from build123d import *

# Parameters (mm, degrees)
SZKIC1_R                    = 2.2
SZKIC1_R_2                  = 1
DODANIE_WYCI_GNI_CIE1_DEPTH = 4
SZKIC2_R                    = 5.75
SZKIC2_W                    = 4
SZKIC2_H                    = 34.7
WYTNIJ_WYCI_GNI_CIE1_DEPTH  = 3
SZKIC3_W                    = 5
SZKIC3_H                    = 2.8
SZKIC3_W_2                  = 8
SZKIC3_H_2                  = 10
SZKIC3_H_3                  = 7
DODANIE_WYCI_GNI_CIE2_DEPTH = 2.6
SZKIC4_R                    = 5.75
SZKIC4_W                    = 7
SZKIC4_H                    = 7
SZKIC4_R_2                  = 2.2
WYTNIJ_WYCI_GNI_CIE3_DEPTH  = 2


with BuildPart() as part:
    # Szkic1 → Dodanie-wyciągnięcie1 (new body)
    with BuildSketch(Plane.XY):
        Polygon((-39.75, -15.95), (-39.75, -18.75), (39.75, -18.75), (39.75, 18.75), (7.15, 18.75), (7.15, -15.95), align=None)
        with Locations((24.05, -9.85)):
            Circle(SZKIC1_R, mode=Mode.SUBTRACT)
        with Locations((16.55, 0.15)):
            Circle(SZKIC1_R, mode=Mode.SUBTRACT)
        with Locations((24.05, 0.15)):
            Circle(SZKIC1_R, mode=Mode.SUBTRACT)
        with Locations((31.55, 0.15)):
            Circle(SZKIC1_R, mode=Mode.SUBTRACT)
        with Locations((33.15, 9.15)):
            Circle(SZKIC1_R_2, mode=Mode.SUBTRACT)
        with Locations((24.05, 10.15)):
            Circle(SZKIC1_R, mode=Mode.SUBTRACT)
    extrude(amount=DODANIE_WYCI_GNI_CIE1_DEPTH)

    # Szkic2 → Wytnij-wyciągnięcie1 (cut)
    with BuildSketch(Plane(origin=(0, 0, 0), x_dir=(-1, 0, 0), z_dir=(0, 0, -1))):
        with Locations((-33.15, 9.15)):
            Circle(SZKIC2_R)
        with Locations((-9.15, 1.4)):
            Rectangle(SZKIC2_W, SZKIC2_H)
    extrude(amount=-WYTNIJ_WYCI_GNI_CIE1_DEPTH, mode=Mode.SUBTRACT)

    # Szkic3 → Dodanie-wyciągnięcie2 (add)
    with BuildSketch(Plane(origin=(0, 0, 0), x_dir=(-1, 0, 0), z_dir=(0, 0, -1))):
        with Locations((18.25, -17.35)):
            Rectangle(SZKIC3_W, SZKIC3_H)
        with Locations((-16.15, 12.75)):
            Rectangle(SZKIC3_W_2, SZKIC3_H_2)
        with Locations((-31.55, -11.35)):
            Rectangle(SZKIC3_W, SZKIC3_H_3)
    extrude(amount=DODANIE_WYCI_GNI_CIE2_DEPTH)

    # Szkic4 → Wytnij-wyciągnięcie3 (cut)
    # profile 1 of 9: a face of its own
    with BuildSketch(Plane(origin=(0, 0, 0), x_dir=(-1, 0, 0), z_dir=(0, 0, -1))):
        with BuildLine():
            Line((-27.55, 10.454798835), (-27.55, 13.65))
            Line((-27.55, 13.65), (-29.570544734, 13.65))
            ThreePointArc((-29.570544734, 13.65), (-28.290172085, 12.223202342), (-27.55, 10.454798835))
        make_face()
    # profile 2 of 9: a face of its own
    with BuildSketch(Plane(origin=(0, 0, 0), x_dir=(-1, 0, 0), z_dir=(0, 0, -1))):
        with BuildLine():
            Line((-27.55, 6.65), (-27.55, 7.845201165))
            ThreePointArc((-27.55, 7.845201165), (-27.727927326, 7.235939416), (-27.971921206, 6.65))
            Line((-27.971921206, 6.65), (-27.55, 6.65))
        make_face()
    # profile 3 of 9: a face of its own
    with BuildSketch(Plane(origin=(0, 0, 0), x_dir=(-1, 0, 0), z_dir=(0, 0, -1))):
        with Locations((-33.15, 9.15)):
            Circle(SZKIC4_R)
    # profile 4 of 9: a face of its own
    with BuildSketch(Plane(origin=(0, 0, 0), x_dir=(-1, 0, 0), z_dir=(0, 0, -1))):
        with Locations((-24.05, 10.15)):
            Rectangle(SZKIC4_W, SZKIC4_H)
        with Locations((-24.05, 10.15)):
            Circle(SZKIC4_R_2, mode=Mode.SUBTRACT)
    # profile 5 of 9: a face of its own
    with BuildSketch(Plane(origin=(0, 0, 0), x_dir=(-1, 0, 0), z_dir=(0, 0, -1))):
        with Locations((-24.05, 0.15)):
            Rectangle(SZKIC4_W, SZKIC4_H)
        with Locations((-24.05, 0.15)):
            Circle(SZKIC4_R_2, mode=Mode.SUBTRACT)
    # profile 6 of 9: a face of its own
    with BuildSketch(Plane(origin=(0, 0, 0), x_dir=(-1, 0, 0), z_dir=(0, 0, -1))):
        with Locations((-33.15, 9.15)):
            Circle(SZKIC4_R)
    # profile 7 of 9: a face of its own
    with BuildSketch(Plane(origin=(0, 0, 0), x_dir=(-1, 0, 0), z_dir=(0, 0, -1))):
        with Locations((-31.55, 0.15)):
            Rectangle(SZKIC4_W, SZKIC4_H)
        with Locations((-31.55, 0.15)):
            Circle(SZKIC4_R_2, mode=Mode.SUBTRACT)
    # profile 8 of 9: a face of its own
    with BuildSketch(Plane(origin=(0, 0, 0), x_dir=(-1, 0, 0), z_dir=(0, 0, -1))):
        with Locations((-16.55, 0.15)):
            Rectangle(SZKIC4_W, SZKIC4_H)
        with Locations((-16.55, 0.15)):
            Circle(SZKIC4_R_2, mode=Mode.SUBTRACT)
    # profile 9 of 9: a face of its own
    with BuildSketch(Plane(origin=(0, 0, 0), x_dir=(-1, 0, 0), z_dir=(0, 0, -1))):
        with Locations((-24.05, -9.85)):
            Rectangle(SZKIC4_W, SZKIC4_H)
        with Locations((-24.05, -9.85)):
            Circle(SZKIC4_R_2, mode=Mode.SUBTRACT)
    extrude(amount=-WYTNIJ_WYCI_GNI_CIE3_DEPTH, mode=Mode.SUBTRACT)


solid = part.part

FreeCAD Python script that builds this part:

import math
import FreeCAD as App
import Part
import Sketcher
from FreeCAD import Vector
Q = App.Units.Quantity

doc = App.newDocument("Part")
body = doc.addObject("PartDesign::Body", "Body")

sketch1 = body.newObject("Sketcher::SketchObject", "Sketch")
sketch1.AttachmentSupport = (doc.getObject("XY_Plane"), [""])
sketch1.MapMode = "FlatFace"
sketch1.addGeometry([
    Part.LineSegment(Vector(-39.8, -15.9, 0), Vector(-39.8, -18.8, 0)),
    Part.LineSegment(Vector(-39.8, -18.8, 0), Vector(39.8, -18.8, 0)),
    Part.LineSegment(Vector(39.8, -18.8, 0), Vector(39.8, 18.8, 0)),
    Part.LineSegment(Vector(39.8, 18.8, 0), Vector(7.2, 18.8, 0)),
    Part.LineSegment(Vector(7.2, 18.8, 0), Vector(7.2, -15.9, 0)),
    Part.LineSegment(Vector(7.2, -15.9, 0), Vector(-39.8, -15.9, 0)),
    Part.Circle(Vector(24.1, -9.8, 0), Vector(0, 0, 1), 2.2),
    Part.Circle(Vector(16.6, 0.1, 0), Vector(0, 0, 1), 2.2),
    Part.Circle(Vector(24.1, 0.1, 0), Vector(0, 0, 1), 2.2),
    Part.Circle(Vector(24.1, 10.2, 0), Vector(0, 0, 1), 2.2),
    Part.Circle(Vector(31.6, 0.1, 0), Vector(0, 0, 1), 2.2),
    Part.Circle(Vector(33.1, 9.2, 0), Vector(0, 0, 1), 1),
], False)
sketch1.addConstraint([
    Sketcher.Constraint("Coincident", 0, 2, 1, 1),
    Sketcher.Constraint("Coincident", 1, 2, 2, 1),
    Sketcher.Constraint("Coincident", 2, 2, 3, 1),
    Sketcher.Constraint("Coincident", 3, 2, 4, 1),
    Sketcher.Constraint("Coincident", 4, 2, 5, 1),
    Sketcher.Constraint("Coincident", 5, 2, 0, 1),
    Sketcher.Constraint("Vertical", 0),
    Sketcher.Constraint("Horizontal", 1),
    Sketcher.Constraint("Vertical", 2),
    Sketcher.Constraint("Horizontal", 3),
    Sketcher.Constraint("Vertical", 4),
    Sketcher.Constraint("Horizontal", 5),
    Sketcher.Constraint("Equal", 6, 7),
    Sketcher.Constraint("Equal", 7, 8),
    Sketcher.Constraint("Equal", 8, 9),
    Sketcher.Constraint("Equal", 9, 10),
    Sketcher.Constraint("Symmetric", 0, 2, 2, 2, -1, 1),
    Sketcher.Constraint("Horizontal", 7, 3, 8, 3),
    Sketcher.Constraint("Horizontal", 8, 3, 10, 3),
    Sketcher.Constraint("Vertical", 6, 3, 8, 3),
    Sketcher.Constraint("Vertical", 8, 3, 9, 3),
    Sketcher.Constraint("Diameter", 11, Q("2 mm")),
    Sketcher.Constraint("Diameter", 6, Q("4.4 mm")),
    Sketcher.Constraint("DistanceX", 1, 1, 1, 2, Q("79.5 mm")),
    Sketcher.Constraint("DistanceX", 3, 2, 3, 1, Q("32.6 mm")),
    Sketcher.Constraint("DistanceY", 0, 2, 0, 1, Q("2.8 mm")),
    Sketcher.Constraint("DistanceY", 2, 1, 2, 2, Q("37.5 mm")),
    Sketcher.Constraint("DistanceY", 6, 3, 7, 3, Q("10 mm")),
    Sketcher.Constraint("DistanceY", 8, 3, 9, 3, Q("10 mm")),
    Sketcher.Constraint("DistanceX", 7, 3, 10, 3, Q("15 mm")),
    Sketcher.Constraint("DistanceY", 10, 3, 11, 3, Q("9 mm")),
    Sketcher.Constraint("DistanceX", 3, 2, 11, 3, Q("26 mm")),
    Sketcher.Constraint("DistanceX", 7, 3, 6, 3, Q("7.5 mm")),
    Sketcher.Constraint("DistanceX", 10, 3, 11, 3, Q("1.6 mm")),
    Sketcher.Constraint("DistanceY", 0, 2, 7, 3, Q("18.9 mm")),
])
pad1 = body.newObject("PartDesign::Pad", "Pad")
pad1.Profile = sketch1
pad1.Length = 4

sketch2 = body.newObject("Sketcher::SketchObject", "Sketch001")
sketch2.AttachmentSupport = (doc.getObject("XY_Plane"), [""])
sketch2.MapMode = "FlatFace"
sketch2.addGeometry([
    Part.Circle(Vector(33.1, 9.2, 0), Vector(0, 0, 1), 5.8),
    Part.LineSegment(Vector(11.2, 18.8, 0), Vector(11.2, -15.9, 0)),
    Part.LineSegment(Vector(11.2, -15.9, 0), Vector(7.2, -15.9, 0)),
    Part.LineSegment(Vector(7.2, -15.9, 0), Vector(7.2, 18.8, 0)),
    Part.LineSegment(Vector(7.2, 18.8, 0), Vector(11.2, 18.8, 0)),
], False)
sketch2.addConstraint([
    Sketcher.Constraint("Coincident", 1, 2, 2, 1),
    Sketcher.Constraint("Coincident", 2, 2, 3, 1),
    Sketcher.Constraint("Coincident", 3, 2, 4, 1),
    Sketcher.Constraint("Coincident", 4, 2, 1, 1),
    Sketcher.Constraint("Vertical", 1),
    Sketcher.Constraint("Horizontal", 2),
    Sketcher.Constraint("Vertical", 3),
    Sketcher.Constraint("Horizontal", 4),
    Sketcher.Constraint("Diameter", 0, Q("11.5 mm")),
    Sketcher.Constraint("DistanceX", 2, 2, 2, 1, Q("4 mm")),
    Sketcher.Constraint("DistanceY", 1, 2, 1, 1, Q("34.7 mm")),
    Sketcher.Constraint("DistanceX", 1, 2, 0, 3, Q("22 mm")),
    Sketcher.Constraint("DistanceY", 1, 2, 0, 3, Q("25.1 mm")),
    Sketcher.Constraint("DistanceX", -1, 1, 0, 3, Q("33.15 mm")),
    Sketcher.Constraint("DistanceY", -1, 1, 0, 3, Q("9.15 mm")),
])
pocket1 = body.newObject("PartDesign::Pocket", "Pocket")
pocket1.Profile = sketch2
pocket1.Length = 3
pocket1.Reversed = True

sketch3 = body.newObject("Sketcher::SketchObject", "Sketch002")
sketch3.AttachmentSupport = (doc.getObject("XY_Plane"), [""])
sketch3.MapMode = "FlatFace"
sketch3.addGeometry([
    Part.LineSegment(Vector(-15.8, -15.9, 0), Vector(-15.8, -18.8, 0)),
    Part.LineSegment(Vector(-15.8, -18.8, 0), Vector(-20.8, -18.8, 0)),
    Part.LineSegment(Vector(-20.8, -18.8, 0), Vector(-20.8, -15.9, 0)),
    Part.LineSegment(Vector(-20.8, -15.9, 0), Vector(-15.8, -15.9, 0)),
    Part.LineSegment(Vector(20.1, 17.8, 0), Vector(20.1, 7.8, 0)),
    Part.LineSegment(Vector(20.1, 7.8, 0), Vector(12.2, 7.8, 0)),
    Part.LineSegment(Vector(12.2, 7.8, 0), Vector(12.2, 17.8, 0)),
    Part.LineSegment(Vector(12.2, 17.8, 0), Vector(20.1, 17.8, 0)),
    Part.LineSegment(Vector(34, -7.8, 0), Vector(34, -14.8, 0)),
    Part.LineSegment(Vector(34, -14.8, 0), Vector(29.1, -14.8, 0)),
    Part.LineSegment(Vector(29.1, -14.8, 0), Vector(29.1, -7.8, 0)),
    Part.LineSegment(Vector(29.1, -7.8, 0), Vector(34, -7.8, 0)),
], False)
sketch3.addConstraint([
    Sketcher.Constraint("Coincident", 0, 2, 1, 1),
    Sketcher.Constraint("Coincident", 1, 2, 2, 1),
    Sketcher.Constraint("Coincident", 2, 2, 3, 1),
    Sketcher.Constraint("Coincident", 3, 2, 0, 1),
    Sketcher.Constraint("Coincident", 4, 2, 5, 1),
    Sketcher.Constraint("Coincident", 5, 2, 6, 1),
    Sketcher.Constraint("Coincident", 6, 2, 7, 1),
    Sketcher.Constraint("Coincident", 7, 2, 4, 1),
    Sketcher.Constraint("Coincident", 8, 2, 9, 1),
    Sketcher.Constraint("Coincident", 9, 2, 10, 1),
    Sketcher.Constraint("Coincident", 10, 2, 11, 1),
    Sketcher.Constraint("Coincident", 11, 2, 8, 1),
    Sketcher.Constraint("Vertical", 0),
    Sketcher.Constraint("Horizontal", 1),
    Sketcher.Constraint("Vertical", 2),
    Sketcher.Constraint("Horizontal", 3),
    Sketcher.Constraint("Vertical", 4),
    Sketcher.Constraint("Horizontal", 5),
    Sketcher.Constraint("Vertical", 6),
    Sketcher.Constraint("Horizontal", 7),
    Sketcher.Constraint("Vertical", 8),
    Sketcher.Constraint("Horizontal", 9),
    Sketcher.Constraint("Vertical", 10),
    Sketcher.Constraint("Horizontal", 11),
    Sketcher.Constraint("Equal", 3, 9),
    Sketcher.Constraint("DistanceX", 1, 2, 1, 1, Q("5 mm")),
    Sketcher.Constraint("DistanceX", 5, 2, 5, 1, Q("8 mm")),
    Sketcher.Constraint("DistanceY", 4, 2, 4, 1, Q("10 mm")),
    Sketcher.Constraint("DistanceY", 8, 2, 8, 1, Q("7 mm")),
    Sketcher.Constraint("DistanceY", 0, 2, 0, 1, Q("2.8 mm")),
    Sketcher.Constraint("DistanceX", 3, 2, 4, 2, Q("35.9 mm")),
    Sketcher.Constraint("DistanceY", 3, 2, 4, 2, Q("23.7 mm")),
    Sketcher.Constraint("DistanceX", 4, 2, 8, 2, Q("13.9 mm")),
    Sketcher.Constraint("DistanceY", 8, 2, 4, 2, Q("22.6 mm")),
    Sketcher.Constraint("DistanceX", 0, 2, -1, 1, Q("15.75 mm")),
    Sketcher.Constraint("DistanceY", 0, 2, -1, 1, Q("18.75 mm")),
])
pad2 = body.newObject("PartDesign::Pad", "Pad001")
pad2.Profile = sketch3
pad2.Length = 2.6
pad2.Reversed = True

sketch4 = body.newObject("Sketcher::SketchObject", "Sketch003")
sketch4.AttachmentSupport = (doc.getObject("XY_Plane"), [""])
sketch4.MapMode = "FlatFace"
sketch4.addGeometry([
    Part.ArcOfCircle(Part.Circle(Vector(33.15, 9.15, 0), Vector(0, 0, 1), 5.75), math.radians(-73), math.radians(128)),
    Part.LineSegment(Vector(34.83, 3.65, 0), Vector(35.05, 3.65, 0)),
    Part.LineSegment(Vector(35.05, 3.65, 0), Vector(35.05, -3.35, 0)),
    Part.LineSegment(Vector(35.05, -3.35, 0), Vector(28.05, -3.35, 0)),
    Part.LineSegment(Vector(28.05, -3.35, 0), Vector(28.05, 3.65, 0)),
    Part.LineSegment(Vector(28.05, 3.65, 0), Vector(31.47, 3.65, 0)),
    Part.ArcOfCircle(Part.Circle(Vector(33.15, 9.15, 0), Vector(0, 0, 1), 5.75), math.radians(-154), math.radians(-107)),
    Part.LineSegment(Vector(27.97, 6.65, 0), Vector(20.55, 6.65, 0)),
    Part.LineSegment(Vector(20.55, 6.65, 0), Vector(20.55, 13.65, 0)),
    Part.LineSegment(Vector(20.55, 13.65, 0), Vector(29.57, 13.65, 0)),
    Part.Circle(Vector(24.05, 10.15, 0), Vector(0, 0, 1), 2.2),
    Part.Circle(Vector(31.55, 0.15, 0), Vector(0, 0, 1), 2.2),
    Part.LineSegment(Vector(27.55, 3.65, 0), Vector(27.55, -3.35, 0)),
    Part.LineSegment(Vector(27.55, -3.35, 0), Vector(20.55, -3.35, 0)),
    Part.LineSegment(Vector(20.55, -3.35, 0), Vector(20.55, 3.65, 0)),
    Part.LineSegment(Vector(20.55, 3.65, 0), Vector(27.55, 3.65, 0)),
    Part.Circle(Vector(24.05, 0.15, 0), Vector(0, 0, 1), 2.2),
    Part.LineSegment(Vector(20.05, 3.65, 0), Vector(20.05, -3.35, 0)),
    Part.LineSegment(Vector(20.05, -3.35, 0), Vector(13.05, -3.35, 0)),
    Part.LineSegment(Vector(13.05, -3.35, 0), Vector(13.05, 3.65, 0)),
    Part.LineSegment(Vector(13.05, 3.65, 0), Vector(20.05, 3.65, 0)),
    Part.Circle(Vector(16.55, 0.15, 0), Vector(0, 0, 1), 2.2),
    Part.LineSegment(Vector(27.55, -6.35, 0), Vector(27.55, -13.35, 0)),
    Part.LineSegment(Vector(27.55, -13.35, 0), Vector(20.55, -13.35, 0)),
    Part.LineSegment(Vector(20.55, -13.35, 0), Vector(20.55, -6.35, 0)),
    Part.LineSegment(Vector(20.55, -6.35, 0), Vector(27.55, -6.35, 0)),
    Part.Circle(Vector(24.05, -9.85, 0), Vector(0, 0, 1), 2.2),
], False)
sketch4.addConstraint([
    Sketcher.Constraint("Coincident", 0, 1, 1, 1),
    Sketcher.Constraint("Coincident", 1, 2, 2, 1),
    Sketcher.Constraint("Coincident", 2, 2, 3, 1),
    Sketcher.Constraint("Coincident", 3, 2, 4, 1),
    Sketcher.Constraint("Coincident", 4, 2, 5, 1),
    Sketcher.Constraint("Coincident", 5, 2, 6, 2),
    Sketcher.Constraint("Coincident", 6, 1, 7, 1),
    Sketcher.Constraint("Coincident", 7, 2, 8, 1),
    Sketcher.Constraint("Coincident", 8, 2, 9, 1),
    Sketcher.Constraint("Coincident", 9, 2, 0, 2),
    Sketcher.Constraint("Coincident", 12, 2, 13, 1),
    Sketcher.Constraint("Coincident", 13, 2, 14, 1),
    Sketcher.Constraint("Coincident", 14, 2, 15, 1),
    Sketcher.Constraint("Coincident", 15, 2, 12, 1),
    Sketcher.Constraint("Coincident", 17, 2, 18, 1),
    Sketcher.Constraint("Coincident", 18, 2, 19, 1),
    Sketcher.Constraint("Coincident", 19, 2, 20, 1),
    Sketcher.Constraint("Coincident", 20, 2, 17, 1),
    Sketcher.Constraint("Coincident", 22, 2, 23, 1),
    Sketcher.Constraint("Coincident", 23, 2, 24, 1),
    Sketcher.Constraint("Coincident", 24, 2, 25, 1),
    Sketcher.Constraint("Coincident", 25, 2, 22, 1),
    Sketcher.Constraint("Horizontal", 1),
    Sketcher.Constraint("Vertical", 2),
    Sketcher.Constraint("Horizontal", 3),
    Sketcher.Constraint("Vertical", 4),
    Sketcher.Constraint("Horizontal", 5),
    Sketcher.Constraint("Horizontal", 7),
    Sketcher.Constraint("Vertical", 8),
    Sketcher.Constraint("Horizontal", 9),
    Sketcher.Constraint("Vertical", 12),
    Sketcher.Constraint("Horizontal", 13),
    Sketcher.Constraint("Vertical", 14),
    Sketcher.Constraint("Horizontal", 15),
    Sketcher.Constraint("Vertical", 17),
    Sketcher.Constraint("Horizontal", 18),
    Sketcher.Constraint("Vertical", 19),
    Sketcher.Constraint("Horizontal", 20),
    Sketcher.Constraint("Vertical", 22),
    Sketcher.Constraint("Horizontal", 23),
    Sketcher.Constraint("Vertical", 24),
    Sketcher.Constraint("Horizontal", 25),
    Sketcher.Constraint("Coincident", 6, 3, 0, 3),
    Sketcher.Constraint("Equal", 0, 6),
    Sketcher.Constraint("Equal", 10, 11),
    Sketcher.Constraint("Equal", 11, 16),
    Sketcher.Constraint("Equal", 16, 21),
    Sketcher.Constraint("Equal", 21, 26),
    Sketcher.Constraint("Horizontal", 11, 3, 16, 3),
    Sketcher.Constraint("Horizontal", 16, 3, 21, 3),
    Sketcher.Constraint("Horizontal", 1, 2, 4, 2),
    Sketcher.Constraint("Horizontal", 3, 2, 12, 2),
    Sketcher.Constraint("Horizontal", 5, 2, 14, 2),
    Sketcher.Constraint("Horizontal", 13, 2, 17, 2),
    Sketcher.Constraint("Horizontal", 15, 2, 19, 2),
    Sketcher.Constraint("Vertical", 10, 3, 16, 3),
    Sketcher.Constraint("Vertical", 16, 3, 26, 3),
    Sketcher.Constraint("Vertical", 8, 2, 13, 2),
    Sketcher.Constraint("Vertical", 15, 2, 22, 2),
    Sketcher.Constraint("Vertical", 14, 2, 23, 2),
    Sketcher.Constraint("Equal", 3, 13),
    Sketcher.Constraint("Equal", 15, 18),
    Sketcher.Constraint("Equal", 25, 2),
    Sketcher.Constraint("Equal", 4, 8),
    Sketcher.Constraint("Equal", 19, 22),
    Sketcher.Constraint("Diameter", 10, Q("4.4 mm")),
    Sketcher.Constraint("DistanceX", 3, 2, 3, 1, Q("7 mm")),
    Sketcher.Constraint("Radius", 0, Q("5.75 mm")),
    Sketcher.Constraint("DistanceY", 0, 3, 10, 3, Q("1 mm")),
    Sketcher.Constraint("DistanceY", 11, 3, 0, 3, Q("9 mm")),
    Sketcher.Constraint("DistanceX", 21, 3, 11, 3, Q("15 mm")),
    Sketcher.Constraint("DistanceY", 26, 3, 16, 3, Q("10 mm")),
    Sketcher.Constraint("DistanceX", 16, 3, 1, 2, Q("11 mm")),
    Sketcher.Constraint("DistanceY", 4, 2, 6, 1, Q("3 mm")),
    Sketcher.Constraint("DistanceX", 21, 3, 7, 2, Q("4 mm")),
    Sketcher.Constraint("DistanceX", 17, 2, 16, 3, Q("4 mm")),
    Sketcher.Constraint("DistanceY", 22, 2, 12, 2, Q("10 mm")),
    Sketcher.Constraint("DistanceX", 10, 3, 0, 3, Q("9.1 mm")),
    Sketcher.Constraint("DistanceX", 11, 3, 0, 3, Q("1.6 mm")),
    Sketcher.Constraint("DistanceY", 11, 3, 0, 1, Q("3.5 mm")),
    Sketcher.Constraint("DistanceX", -1, 1, 0, 3, Q("33.15 mm")),
    Sketcher.Constraint("DistanceY", -1, 1, 0, 3, Q("9.15 mm")),
])
pocket2 = body.newObject("PartDesign::Pocket", "Pocket001")
pocket2.Profile = sketch4
pocket2.Length = 2
pocket2.Reversed = True

doc.recompute()
